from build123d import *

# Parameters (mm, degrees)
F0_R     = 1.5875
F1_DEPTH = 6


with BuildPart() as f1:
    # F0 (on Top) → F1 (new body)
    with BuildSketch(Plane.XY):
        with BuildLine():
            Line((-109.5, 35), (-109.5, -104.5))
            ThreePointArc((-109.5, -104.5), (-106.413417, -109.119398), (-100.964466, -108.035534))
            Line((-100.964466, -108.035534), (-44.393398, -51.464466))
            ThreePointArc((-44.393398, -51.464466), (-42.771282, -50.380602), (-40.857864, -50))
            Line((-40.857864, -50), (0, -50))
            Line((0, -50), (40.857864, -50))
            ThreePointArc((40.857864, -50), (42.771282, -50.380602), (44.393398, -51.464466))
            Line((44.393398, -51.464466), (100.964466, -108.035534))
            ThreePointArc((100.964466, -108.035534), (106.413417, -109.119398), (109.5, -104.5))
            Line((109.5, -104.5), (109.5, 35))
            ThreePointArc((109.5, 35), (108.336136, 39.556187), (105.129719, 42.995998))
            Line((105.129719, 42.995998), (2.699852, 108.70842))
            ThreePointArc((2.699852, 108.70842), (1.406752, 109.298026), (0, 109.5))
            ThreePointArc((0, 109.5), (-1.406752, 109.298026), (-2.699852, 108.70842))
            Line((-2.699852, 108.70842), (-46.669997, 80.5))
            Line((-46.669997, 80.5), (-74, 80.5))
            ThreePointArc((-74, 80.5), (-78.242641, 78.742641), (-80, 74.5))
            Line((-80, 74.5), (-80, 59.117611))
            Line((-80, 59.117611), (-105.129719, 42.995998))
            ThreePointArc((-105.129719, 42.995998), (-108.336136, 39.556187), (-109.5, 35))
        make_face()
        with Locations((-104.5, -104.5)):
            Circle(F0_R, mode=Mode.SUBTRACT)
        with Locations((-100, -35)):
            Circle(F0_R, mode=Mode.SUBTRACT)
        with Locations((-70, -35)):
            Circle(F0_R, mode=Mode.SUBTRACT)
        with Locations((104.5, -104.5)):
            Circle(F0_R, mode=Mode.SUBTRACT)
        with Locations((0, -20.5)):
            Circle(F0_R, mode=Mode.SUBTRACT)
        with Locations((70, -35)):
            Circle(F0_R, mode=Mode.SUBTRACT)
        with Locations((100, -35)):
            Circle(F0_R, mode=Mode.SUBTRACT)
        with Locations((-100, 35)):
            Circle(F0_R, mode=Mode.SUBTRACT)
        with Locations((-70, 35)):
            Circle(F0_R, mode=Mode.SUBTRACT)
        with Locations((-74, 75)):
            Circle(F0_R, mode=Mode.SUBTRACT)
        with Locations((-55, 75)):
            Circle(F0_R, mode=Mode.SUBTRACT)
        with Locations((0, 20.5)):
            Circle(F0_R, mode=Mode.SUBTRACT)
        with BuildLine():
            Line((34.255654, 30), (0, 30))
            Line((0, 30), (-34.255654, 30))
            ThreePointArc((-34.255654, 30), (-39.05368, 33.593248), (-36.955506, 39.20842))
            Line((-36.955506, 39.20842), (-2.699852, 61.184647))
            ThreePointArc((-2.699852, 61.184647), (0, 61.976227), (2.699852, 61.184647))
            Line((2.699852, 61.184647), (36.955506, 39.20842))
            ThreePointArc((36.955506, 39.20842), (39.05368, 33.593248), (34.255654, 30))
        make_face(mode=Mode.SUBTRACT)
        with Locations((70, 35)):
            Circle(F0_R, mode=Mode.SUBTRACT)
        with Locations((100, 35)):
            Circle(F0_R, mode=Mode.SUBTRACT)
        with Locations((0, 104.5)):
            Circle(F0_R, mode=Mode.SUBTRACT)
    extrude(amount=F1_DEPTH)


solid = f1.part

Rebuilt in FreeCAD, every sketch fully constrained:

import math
import FreeCAD as App
import Part
import Sketcher

V = App.Vector
Q = App.Units.Quantity

doc = App.newDocument("Part")
body = doc.addObject("PartDesign::Body", "Body")

# Sketch on XY plane
sketch1 = doc.addObject("Sketcher::SketchObject", "Sketch")
body.addObject(sketch1)
sketch1.AttachmentSupport = (doc.XY_Plane, [""])
sketch1.MapMode = "FlatFace"
sketch1.addGeometry([
    Part.LineSegment(V(-109.5, 35, 0), V(-109.5, -104.5, 0)),  # 0
    Part.ArcOfCircle(Part.Circle(V(-104.5, -104.5, 0), V(0, 0, 1), 5), math.radians(180), math.radians(315)),  # 1
    Part.LineSegment(V(-101, -108, 0), V(-44.4, -51.5, 0)),  # 2
    Part.ArcOfCircle(Part.Circle(V(-40.9, -55, 0), V(0, 0, 1), 5), math.radians(90), math.radians(135)),  # 3
    Part.LineSegment(V(-40.9, -50, 0), V(40.9, -50, 0)),  # 4
    Part.ArcOfCircle(Part.Circle(V(40.9, -55, 0), V(0, 0, 1), 5), math.radians(45), math.radians(90)),  # 5
    Part.LineSegment(V(44.4, -51.5, 0), V(101, -108, 0)),  # 6
    Part.ArcOfCircle(Part.Circle(V(104.5, -104.5, 0), V(0, 0, 1), 5), math.radians(-135), math.radians(0)),  # 7
    Part.LineSegment(V(109.5, -104.5, 0), V(109.5, 35, 0)),  # 8
    Part.ArcOfCircle(Part.Circle(V(100, 35, 0), V(0, 0, 1), 9.5), math.radians(0), math.radians(57)),  # 9
    Part.LineSegment(V(105.1, 43, 0), V(2.7, 108.7, 0)),  # 10
    Part.ArcOfCircle(Part.Circle(V(0, 104.5, 0), V(0, 0, 1), 5), math.radians(57), math.radians(90)),  # 11
    Part.ArcOfCircle(Part.Circle(V(0, 104.5, 0), V(0, 0, 1), 5), math.radians(90), math.radians(123)),  # 12
    Part.LineSegment(V(-2.7, 108.7, 0), V(-46.7, 80.5, 0)),  # 13
    Part.LineSegment(V(-46.7, 80.5, 0), V(-74, 80.5, 0)),  # 14
    Part.ArcOfCircle(Part.Circle(V(-74, 74.5, 0), V(0, 0, 1), 6), math.radians(90), math.radians(180)),  # 15
    Part.LineSegment(V(-80, 74.5, 0), V(-80, 59.1, 0)),  # 16
    Part.LineSegment(V(-80, 59.1, 0), V(-105.1, 43, 0)),  # 17
    Part.ArcOfCircle(Part.Circle(V(-100, 35, 0), V(0, 0, 1), 9.5), math.radians(123), math.radians(180)),  # 18
    Part.Circle(V(-104.5, -104.5, 0), V(0, 0, 1), 1.6),  # 19
    Part.Circle(V(-100, -35, 0), V(0, 0, 1), 1.6),  # 20
    Part.Circle(V(-70, -35, 0), V(0, 0, 1), 1.6),  # 21
    Part.Circle(V(104.5, -104.5, 0), V(0, 0, 1), 1.6),  # 22
    Part.Circle(V(0, -20.5, 0), V(0, 0, 1), 1.6),  # 23
    Part.Circle(V(70, -35, 0), V(0, 0, 1), 1.6),  # 24
    Part.Circle(V(100, -35, 0), V(0, 0, 1), 1.6),  # 25
    Part.Circle(V(-100, 35, 0), V(0, 0, 1), 1.6),  # 26
    Part.Circle(V(-70, 35, 0), V(0, 0, 1), 1.6),  # 27
    Part.Circle(V(-74, 75, 0), V(0, 0, 1), 1.6),  # 28
    Part.Circle(V(-55, 75, 0), V(0, 0, 1), 1.6),  # 29
    Part.Circle(V(0, 20.5, 0), V(0, 0, 1), 1.6),  # 30
    Part.ArcOfCircle(Part.Circle(V(34.3, 35, 0), V(0, 0, 1), 5), math.radians(-90), math.radians(57)),  # 31
    Part.LineSegment(V(34.3, 30, 0), V(-34.3, 30, 0)),  # 32
    Part.ArcOfCircle(Part.Circle(V(-34.3, 35, 0), V(0, 0, 1), 5), math.radians(123), math.radians(270)),  # 33
    Part.LineSegment(V(-37, 39.2, 0), V(-2.7, 61.2, 0)),  # 34
    Part.ArcOfCircle(Part.Circle(V(0, 57, 0), V(0, 0, 1), 5), math.radians(57), math.radians(123)),  # 35
    Part.LineSegment(V(2.7, 61.2, 0), V(37, 39.2, 0)),  # 36
    Part.Circle(V(70, 35, 0), V(0, 0, 1), 1.6),  # 37
    Part.Circle(V(100, 35, 0), V(0, 0, 1), 1.6),  # 38
    Part.Circle(V(0, 104.5, 0), V(0, 0, 1), 1.6),  # 39
], False)
sketch1.addConstraint([
    Sketcher.Constraint("Tangent", 0, 2, 1, 1),
    Sketcher.Constraint("Tangent", 1, 2, 2, 1),
    Sketcher.Constraint("Tangent", 2, 2, 3, 2),
    Sketcher.Constraint("Tangent", 3, 1, 4, 1),
    Sketcher.Constraint("Tangent", 4, 2, 5, 2),
    Sketcher.Constraint("Tangent", 5, 1, 6, 1),
    Sketcher.Constraint("Tangent", 6, 2, 7, 1),
    Sketcher.Constraint("Tangent", 7, 2, 8, 1),
    Sketcher.Constraint("Tangent", 8, 2, 9, 1),
    Sketcher.Constraint("Tangent", 9, 2, 10, 1),
    Sketcher.Constraint("Tangent", 10, 2, 11, 1),
    Sketcher.Constraint("Tangent", 11, 2, 12, 1),
    Sketcher.Constraint("Tangent", 12, 2, 13, 1),
    Sketcher.Constraint("Coincident", 13, 2, 14, 1),
    Sketcher.Constraint("Tangent", 14, 2, 15, 1),
    Sketcher.Constraint("Tangent", 15, 2, 16, 1),
    Sketcher.Constraint("Coincident", 16, 2, 17, 1),
    Sketcher.Constraint("Tangent", 17, 2, 18, 1),
    Sketcher.Constraint("Tangent", 18, 2, 0, 1),
    Sketcher.Constraint("Tangent", 31, 1, 32, 1),
    Sketcher.Constraint("Tangent", 32, 2, 33, 2),
    Sketcher.Constraint("Tangent", 33, 1, 34, 1),
    Sketcher.Constraint("Tangent", 34, 2, 35, 2),
    Sketcher.Constraint("Tangent", 35, 1, 36, 1),
    Sketcher.Constraint("Tangent", 36, 2, 31, 2),
    Sketcher.Constraint("Vertical", 0),
    Sketcher.Constraint("Horizontal", 4),
    Sketcher.Constraint("Vertical", 8),
    Sketcher.Constraint("Horizontal", 14),
    Sketcher.Constraint("Vertical", 16),
    Sketcher.Constraint("Horizontal", 32),
    Sketcher.Constraint("Coincident", 19, 3, 1, 3),
    Sketcher.Constraint("Coincident", 22, 3, 7, 3),
    Sketcher.Constraint("Coincident", 26, 3, 18, 3),
    Sketcher.Constraint("Coincident", 38, 3, 9, 3),
    Sketcher.Constraint("Equal", 3, 5),
    Sketcher.Constraint("Equal", 1, 7),
    Sketcher.Constraint("Equal", 11, 12),
    Sketcher.Constraint("Equal", 9, 18),
    Sketcher.Constraint("Equal", 19, 20),
    Sketcher.Constraint("Equal", 20, 21),
    Sketcher.Constraint("Equal", 21, 22),
    Sketcher.Constraint("Equal", 22, 23),
    Sketcher.Constraint("Equal", 23, 24),
    Sketcher.Constraint("Equal", 24, 25),
    Sketcher.Constraint("Equal", 25, 26),
    Sketcher.Constraint("Equal", 26, 27),
    Sketcher.Constraint("Equal", 27, 28),
    Sketcher.Constraint("Equal", 28, 29),
    Sketcher.Constraint("Equal", 29, 30),
    Sketcher.Constraint("Equal", 7, 31),
    Sketcher.Constraint("Equal", 31, 33),
    Sketcher.Constraint("Equal", 33, 35),
    Sketcher.Constraint("Equal", 30, 37),
    Sketcher.Constraint("Equal", 37, 38),
    Sketcher.Constraint("Equal", 38, 39),
    Sketcher.Constraint("Symmetric", 9, 3, 20, 3, -1, 1),
    Sketcher.Constraint("Symmetric", 18, 3, 25, 3, -1, 1),
    Sketcher.Constraint("Symmetric", 24, 3, 27, 3, -1, 1),
    Sketcher.Constraint("Symmetric", 23, 3, 30, 3, -1, 1),
    Sketcher.Constraint("Symmetric", 21, 3, 37, 3, -1, 1),
    Sketcher.Constraint("Symmetric", 1, 3, 7, 3, -2),
    Sketcher.Constraint("Symmetric", 21, 3, 24, 3, -2),
    Sketcher.Constraint("Symmetric", 10, 2, 12, 2, -2),
    Sketcher.Constraint("Symmetric", 9, 2, 17, 2, -2),
    Sketcher.Constraint("Symmetric", 34, 2, 35, 1, -2),
    Sketcher.Constraint("PointOnObject", 23, 3, -2),
    Sketcher.Constraint("PointOnObject", 39, 3, -2),
    Sketcher.Constraint("PointOnObject", 11, 2, -2),
    Sketcher.Constraint("Perpendicular", 2, 6),
    Sketcher.Constraint("Parallel", 17, 34),
    Sketcher.Constraint("Horizontal", 20, 3, 21, 3),
    Sketcher.Constraint("Horizontal", 28, 3, 29, 3),
    Sketcher.Constraint("Horizontal", 27, 3, 31, 3),
    Sketcher.Constraint("Horizontal", 2, 2, 5, 1),
    Sketcher.Constraint("Vertical", 15, 3, 28, 3),
    Sketcher.Constraint("Vertical", 12, 2, 34, 2),
    Sketcher.Constraint("Radius", 1, Q("5 mm")),
    Sketcher.Constraint("Radius", 15, Q("5.999999 mm")),
    Sketcher.Constraint("Radius", 9, Q("9.499999 mm")),
    Sketcher.Constraint("Diameter", 19, Q("3.175 mm")),
    Sketcher.Constraint("DistanceY", 0, 2, 0, 1, Q("139.5 mm")),
    Sketcher.Constraint("DistanceX", -1, 1, 9, 3, Q("100.000001 mm")),
    Sketcher.Constraint("DistanceY", -1, 1, 9, 3, Q("35.000001 mm")),
    Sketcher.Constraint("DistanceX", 15, 3, -1, 1, Q("74.000001 mm")),
    Sketcher.Constraint("DistanceX", 21, 3, -1, 1, Q("70 mm")),
    Sketcher.Constraint("DistanceY", -1, 1, 28, 3, Q("75 mm")),
    Sketcher.Constraint("DistanceX", 29, 3, -1, 1, Q("55 mm")),
    Sketcher.Constraint("DistanceY", 3, 1, -1, 1, Q("50 mm")),
    Sketcher.Constraint("DistanceY", 19, 3, 15, 3, Q("179.000001 mm")),
    Sketcher.Constraint("DistanceY", 23, 3, 30, 3, Q("41 mm")),
    Sketcher.Constraint("DistanceY", 39, 3, 11, 2, Q("5 mm")),
    Sketcher.Constraint("DistanceY", -1, 1, 39, 3, Q("104.5 mm")),
    Sketcher.Constraint("Radius", 3, Q("4.999993 mm")),
    Sketcher.Constraint("DistanceX", 32, 2, 32, 1, Q("68.511308 mm")),
])
pad1 = doc.addObject("PartDesign::Pad", "Pad")
body.addObject(pad1)
pad1.Profile = sketch1
pad1.Length = 6

doc.recompute()
